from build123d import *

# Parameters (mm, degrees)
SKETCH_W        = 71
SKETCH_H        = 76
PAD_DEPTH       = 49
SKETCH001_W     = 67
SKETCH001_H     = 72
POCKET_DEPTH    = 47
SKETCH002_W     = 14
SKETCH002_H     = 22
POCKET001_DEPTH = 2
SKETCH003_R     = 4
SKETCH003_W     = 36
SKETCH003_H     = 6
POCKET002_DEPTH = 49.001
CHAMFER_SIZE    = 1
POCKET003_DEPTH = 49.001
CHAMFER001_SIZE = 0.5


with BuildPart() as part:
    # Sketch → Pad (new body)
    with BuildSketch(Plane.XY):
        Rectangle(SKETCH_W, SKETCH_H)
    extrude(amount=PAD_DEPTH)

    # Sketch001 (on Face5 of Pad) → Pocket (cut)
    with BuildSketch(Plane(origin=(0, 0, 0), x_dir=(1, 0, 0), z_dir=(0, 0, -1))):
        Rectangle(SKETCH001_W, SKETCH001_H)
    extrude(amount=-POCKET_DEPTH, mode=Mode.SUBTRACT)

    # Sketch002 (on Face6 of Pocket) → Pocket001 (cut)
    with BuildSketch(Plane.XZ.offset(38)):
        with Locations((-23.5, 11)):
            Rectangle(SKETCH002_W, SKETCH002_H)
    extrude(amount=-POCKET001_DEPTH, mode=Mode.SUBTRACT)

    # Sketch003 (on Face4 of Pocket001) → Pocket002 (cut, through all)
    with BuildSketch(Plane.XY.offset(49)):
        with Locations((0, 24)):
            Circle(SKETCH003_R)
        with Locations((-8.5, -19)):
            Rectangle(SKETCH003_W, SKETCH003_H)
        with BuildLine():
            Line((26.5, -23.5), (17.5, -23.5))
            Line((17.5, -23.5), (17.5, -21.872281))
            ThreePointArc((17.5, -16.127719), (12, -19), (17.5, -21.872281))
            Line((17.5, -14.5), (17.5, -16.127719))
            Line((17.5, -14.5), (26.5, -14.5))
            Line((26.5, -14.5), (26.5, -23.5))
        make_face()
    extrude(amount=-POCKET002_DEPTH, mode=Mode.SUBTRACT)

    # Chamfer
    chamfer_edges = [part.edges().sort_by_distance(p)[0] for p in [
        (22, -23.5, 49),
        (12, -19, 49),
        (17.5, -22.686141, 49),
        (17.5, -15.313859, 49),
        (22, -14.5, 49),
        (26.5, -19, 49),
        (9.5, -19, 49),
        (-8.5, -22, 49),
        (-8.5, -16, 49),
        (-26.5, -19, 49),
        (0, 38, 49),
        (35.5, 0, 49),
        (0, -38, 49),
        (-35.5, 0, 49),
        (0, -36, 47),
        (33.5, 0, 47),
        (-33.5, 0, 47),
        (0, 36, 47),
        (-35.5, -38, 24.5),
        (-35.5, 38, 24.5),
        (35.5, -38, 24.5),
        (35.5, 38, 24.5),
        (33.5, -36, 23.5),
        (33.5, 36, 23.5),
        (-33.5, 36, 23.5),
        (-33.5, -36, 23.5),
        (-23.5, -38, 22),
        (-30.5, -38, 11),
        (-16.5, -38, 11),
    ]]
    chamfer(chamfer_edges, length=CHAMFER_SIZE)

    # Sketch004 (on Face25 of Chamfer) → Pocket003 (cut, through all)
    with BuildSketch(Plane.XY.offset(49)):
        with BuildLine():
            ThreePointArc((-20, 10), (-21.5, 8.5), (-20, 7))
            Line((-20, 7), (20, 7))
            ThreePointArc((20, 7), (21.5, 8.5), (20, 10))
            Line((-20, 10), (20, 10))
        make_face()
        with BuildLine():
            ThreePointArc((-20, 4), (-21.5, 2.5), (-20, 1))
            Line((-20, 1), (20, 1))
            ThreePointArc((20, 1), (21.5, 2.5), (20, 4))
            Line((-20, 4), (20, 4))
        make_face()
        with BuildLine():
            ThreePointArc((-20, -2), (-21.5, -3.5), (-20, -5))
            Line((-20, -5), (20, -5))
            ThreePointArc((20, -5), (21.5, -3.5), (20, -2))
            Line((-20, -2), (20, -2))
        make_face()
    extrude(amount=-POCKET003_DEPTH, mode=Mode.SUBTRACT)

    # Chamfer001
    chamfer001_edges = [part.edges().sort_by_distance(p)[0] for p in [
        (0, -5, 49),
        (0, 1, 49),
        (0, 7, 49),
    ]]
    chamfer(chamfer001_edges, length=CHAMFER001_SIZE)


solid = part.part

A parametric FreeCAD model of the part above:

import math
import FreeCAD as App
import Part
import Sketcher
Q = App.Units.Quantity


def edges_at(feature, points):
    """Names of the edges that pass closest to the given points."""
    edges = feature.Shape.Edges
    near = lambda p: min(range(len(edges)), key=lambda i: edges[i].distToShape(Part.Vertex(*p))[0])
    return sorted({f"Edge{near(p) + 1}" for p in points})

doc = App.newDocument("Part")
body = doc.addObject("PartDesign::Body", "Body")

# Sketch on XY plane
sketch1 = body.newObject("Sketcher::SketchObject", "Sketch")
sketch1.AttachmentSupport = (doc.getObject("XY_Plane"), [""])
sketch1.MapMode = "FlatFace"
sketch1.addGeometry(Part.LineSegment(App.Vector(-36, 38, 0), App.Vector(-36, -38, 0)), False)
sketch1.addGeometry(Part.LineSegment(App.Vector(-36, -38, 0), App.Vector(36, -38, 0)), False)
sketch1.addGeometry(Part.LineSegment(App.Vector(36, -38, 0), App.Vector(36, 38, 0)), False)
sketch1.addGeometry(Part.LineSegment(App.Vector(36, 38, 0), App.Vector(-36, 38, 0)), False)
sketch1.addConstraint(Sketcher.Constraint("Coincident", 0, 2, 1, 1))
sketch1.addConstraint(Sketcher.Constraint("Coincident", 1, 2, 2, 1))
sketch1.addConstraint(Sketcher.Constraint("Coincident", 2, 2, 3, 1))
sketch1.addConstraint(Sketcher.Constraint("Coincident", 3, 2, 0, 1))
sketch1.addConstraint(Sketcher.Constraint("Vertical", 0))
sketch1.addConstraint(Sketcher.Constraint("Horizontal", 1))
sketch1.addConstraint(Sketcher.Constraint("Vertical", 2))
sketch1.addConstraint(Sketcher.Constraint("Horizontal", 3))
sketch1.addConstraint(Sketcher.Constraint("Symmetric", 0, 2, 2, 2, -1, 1))
sketch1.addConstraint(Sketcher.Constraint("DistanceX", 1, 1, 1, 2, Q("71 mm")))
sketch1.addConstraint(Sketcher.Constraint("DistanceY", 0, 2, 0, 1, Q("76 mm")))
pad1 = body.newObject("PartDesign::Pad", "Pad")
pad1.Profile = sketch1
pad1.Length = 49

# Sketch on XY plane
sketch2 = body.newObject("Sketcher::SketchObject", "Sketch001")
sketch2.AttachmentSupport = (doc.getObject("XY_Plane"), [""])
sketch2.MapMode = "FlatFace"
sketch2.addGeometry(Part.LineSegment(App.Vector(-34, -36, 0), App.Vector(-34, 36, 0)), False)
sketch2.addGeometry(Part.LineSegment(App.Vector(-34, 36, 0), App.Vector(34, 36, 0)), False)
sketch2.addGeometry(Part.LineSegment(App.Vector(34, 36, 0), App.Vector(34, -36, 0)), False)
sketch2.addGeometry(Part.LineSegment(App.Vector(34, -36, 0), App.Vector(-34, -36, 0)), False)
sketch2.addConstraint(Sketcher.Constraint("Coincident", 0, 2, 1, 1))
sketch2.addConstraint(Sketcher.Constraint("Coincident", 1, 2, 2, 1))
sketch2.addConstraint(Sketcher.Constraint("Coincident", 2, 2, 3, 1))
sketch2.addConstraint(Sketcher.Constraint("Coincident", 3, 2, 0, 1))
sketch2.addConstraint(Sketcher.Constraint("Vertical", 0))
sketch2.addConstraint(Sketcher.Constraint("Horizontal", 1))
sketch2.addConstraint(Sketcher.Constraint("Vertical", 2))
sketch2.addConstraint(Sketcher.Constraint("Horizontal", 3))
sketch2.addConstraint(Sketcher.Constraint("Symmetric", 0, 2, 2, 2, -1, 1))
sketch2.addConstraint(Sketcher.Constraint("DistanceX", 1, 1, 1, 2, Q("67 mm")))
sketch2.addConstraint(Sketcher.Constraint("DistanceY", 0, 1, 0, 2, Q("72 mm")))
pocket1 = body.newObject("PartDesign::Pocket", "Pocket")
pocket1.Profile = sketch2
pocket1.Length = 47
pocket1.Reversed = True

# Sketch on XZ plane
sketch3 = body.newObject("Sketcher::SketchObject", "Sketch002")
sketch3.AttachmentSupport = (doc.getObject("XZ_Plane"), [""])
sketch3.MapMode = "FlatFace"
sketch3.AttachmentOffset = App.Placement(App.Vector(0, 0, 38), App.Rotation())
sketch3.addGeometry(Part.LineSegment(App.Vector(-30, 22, 0), App.Vector(-30, 0, 0)), False)
sketch3.addGeometry(Part.LineSegment(App.Vector(-30, 0, 0), App.Vector(-16, 0, 0)), False)
sketch3.addGeometry(Part.LineSegment(App.Vector(-16, 0, 0), App.Vector(-16, 22, 0)), False)
sketch3.addGeometry(Part.LineSegment(App.Vector(-16, 22, 0), App.Vector(-30, 22, 0)), False)
sketch3.addConstraint(Sketcher.Constraint("Coincident", 0, 2, 1, 1))
sketch3.addConstraint(Sketcher.Constraint("Coincident", 1, 2, 2, 1))
sketch3.addConstraint(Sketcher.Constraint("Coincident", 2, 2, 3, 1))
sketch3.addConstraint(Sketcher.Constraint("Coincident", 3, 2, 0, 1))
sketch3.addConstraint(Sketcher.Constraint("Vertical", 0))
sketch3.addConstraint(Sketcher.Constraint("Horizontal", 1))
sketch3.addConstraint(Sketcher.Constraint("Vertical", 2))
sketch3.addConstraint(Sketcher.Constraint("Horizontal", 3))
sketch3.addConstraint(Sketcher.Constraint("PointOnObject", 0, 2, -1))
sketch3.addConstraint(Sketcher.Constraint("DistanceX", 1, 1, 1, 2, Q("14 mm")))
sketch3.addConstraint(Sketcher.Constraint("DistanceY", 0, 2, 0, 1, Q("22 mm")))
sketch3.addConstraint(Sketcher.Constraint("DistanceX", 0, 2, -1, 1, Q("30.5 mm")))
pocket2 = body.newObject("PartDesign::Pocket", "Pocket001")
pocket2.Profile = sketch3
pocket2.Length = 2

# Sketch on XY plane
sketch4 = body.newObject("Sketcher::SketchObject", "Sketch003")
sketch4.AttachmentSupport = (doc.getObject("XY_Plane"), [""])
sketch4.MapMode = "FlatFace"
sketch4.AttachmentOffset = App.Placement(App.Vector(0, 0, 49), App.Rotation())
sketch4.addGeometry(Part.Circle(App.Vector(0, 24, 0), App.Vector(0, 0, 1), 4), False)
sketch4.addGeometry(Part.LineSegment(App.Vector(-26.5, -16, 0), App.Vector(-26.5, -22, 0)), False)
sketch4.addGeometry(Part.LineSegment(App.Vector(-26.5, -22, 0), App.Vector(9.5, -22, 0)), False)
sketch4.addGeometry(Part.LineSegment(App.Vector(9.5, -22, 0), App.Vector(9.5, -16, 0)), False)
sketch4.addGeometry(Part.LineSegment(App.Vector(9.5, -16, 0), App.Vector(-26.5, -16, 0)), False)
sketch4.addGeometry(Part.LineSegment(App.Vector(17.5, -23.5, 0), App.Vector(26.5, -23.5, 0)), False)
sketch4.addGeometry(Part.LineSegment(App.Vector(26.5, -23.5, 0), App.Vector(26.5, -14.5, 0)), False)
sketch4.addGeometry(Part.LineSegment(App.Vector(26.5, -14.5, 0), App.Vector(17.5, -14.5, 0)), False)
sketch4.addGeometry(Part.LineSegment(App.Vector(17.5, -14.5, 0), App.Vector(17.5, -16.1, 0)), False)
sketch4.addGeometry(Part.ArcOfCircle(Part.Circle(App.Vector(15.5, -19, 0), App.Vector(0, 0, 1), 3.5), math.radians(55), math.radians(305)), False)
sketch4.addGeometry(Part.LineSegment(App.Vector(17.5, -21.9, 0), App.Vector(17.5, -23.5, 0)), False)
sketch4.addConstraint(Sketcher.Constraint("Coincident", 1, 2, 2, 1))
sketch4.addConstraint(Sketcher.Constraint("Coincident", 2, 2, 3, 1))
sketch4.addConstraint(Sketcher.Constraint("Coincident", 3, 2, 4, 1))
sketch4.addConstraint(Sketcher.Constraint("Coincident", 4, 2, 1, 1))
sketch4.addConstraint(Sketcher.Constraint("Coincident", 5, 2, 6, 1))
sketch4.addConstraint(Sketcher.Constraint("Coincident", 6, 2, 7, 1))
sketch4.addConstraint(Sketcher.Constraint("Coincident", 7, 2, 8, 1))
sketch4.addConstraint(Sketcher.Constraint("Coincident", 8, 2, 9, 1))
sketch4.addConstraint(Sketcher.Constraint("Coincident", 9, 2, 10, 1))
sketch4.addConstraint(Sketcher.Constraint("Coincident", 10, 2, 5, 1))
sketch4.addConstraint(Sketcher.Constraint("Vertical", 1))
sketch4.addConstraint(Sketcher.Constraint("Horizontal", 2))
sketch4.addConstraint(Sketcher.Constraint("Vertical", 3))
sketch4.addConstraint(Sketcher.Constraint("Horizontal", 4))
sketch4.addConstraint(Sketcher.Constraint("Horizontal", 5))
sketch4.addConstraint(Sketcher.Constraint("Vertical", 6))
sketch4.addConstraint(Sketcher.Constraint("Horizontal", 7))
sketch4.addConstraint(Sketcher.Constraint("Vertical", 8))
sketch4.addConstraint(Sketcher.Constraint("Vertical", 10))
sketch4.addConstraint(Sketcher.Constraint("PointOnObject", 0, 3, -2))
sketch4.addConstraint(Sketcher.Constraint("Vertical", 8, 2, 9, 2))
sketch4.addConstraint(Sketcher.Constraint("Equal", 7, 6))
sketch4.addConstraint(Sketcher.Constraint("Equal", 8, 10))
sketch4.addConstraint(Sketcher.Constraint("Diameter", 0, Q("8 mm")))
sketch4.addConstraint(Sketcher.Constraint("Radius", 9, Q("3.5 mm")))
sketch4.addConstraint(Sketcher.Constraint("DistanceX", 2, 1, 2, 2, Q("36 mm")))
sketch4.addConstraint(Sketcher.Constraint("DistanceX", 5, 1, 5, 2, Q("9 mm")))
sketch4.addConstraint(Sketcher.Constraint("DistanceY", 1, 2, 1, 1, Q("6 mm")))
sketch4.addConstraint(Sketcher.Constraint("DistanceY", -1, 1, 0, 3, Q("24 mm")))
sketch4.addConstraint(Sketcher.Constraint("DistanceY", 9, 3, -1, 1, Q("19 mm")))
sketch4.addConstraint(Sketcher.Constraint("DistanceY", 1, 2, -1, 1, Q("22 mm")))
sketch4.addConstraint(Sketcher.Constraint("DistanceX", 1, 2, 9, 3, Q("42 mm")))
sketch4.addConstraint(Sketcher.Constraint("DistanceX", 9, 3, 5, 2, Q("11 mm")))
sketch4.addConstraint(Sketcher.Constraint("DistanceX", -1, 1, 9, 3, Q("15.5 mm")))
pocket3 = body.newObject("PartDesign::Pocket", "Pocket002")
pocket3.Profile = sketch4
pocket3.Type = "ThroughAll"
doc.recompute()

chamfer = body.newObject("PartDesign::Chamfer", "Chamfer")
chamfer.Base = (pocket3, edges_at(pocket3, [
    (22, -23.5, 49),
    (12, -19, 49),
    (17.5, -22.686, 49),
    (17.5, -15.314, 49),
    (22, -14.5, 49),
    (26.5, -19, 49),
    (9.5, -19, 49),
    (-8.5, -22, 49),
    (-8.5, -16, 49),
    (-26.5, -19, 49),
    (0, 38, 49),
    (35.5, 0, 49),
    (0, -38, 49),
    (-35.5, 0, 49),
    (0, -36, 47),
    (33.5, 0, 47),
    (-33.5, 0, 47),
    (0, 36, 47),
    (-35.5, -38, 24.5),
    (-35.5, 38, 24.5),
    (35.5, -38, 24.5),
    (35.5, 38, 24.5),
    (33.5, -36, 23.5),
    (33.5, 36, 23.5),
    (-33.5, 36, 23.5),
    (-33.5, -36, 23.5),
    (-23.5, -38, 22),
    (-30.5, -38, 11),
    (-16.5, -38, 11),
]))
chamfer.Size = 1

# Sketch on XY plane
sketch5 = body.newObject("Sketcher::SketchObject", "Sketch004")
sketch5.AttachmentSupport = (doc.getObject("XY_Plane"), [""])
sketch5.MapMode = "FlatFace"
sketch5.AttachmentOffset = App.Placement(App.Vector(0, 0, 49), App.Rotation())
sketch5.addGeometry(Part.ArcOfCircle(Part.Circle(App.Vector(-20, 8.5, 0), App.Vector(0, 0, 1), 1.5), math.radians(90), math.radians(270)), False)
sketch5.addGeometry(Part.LineSegment(App.Vector(-20, 7, 0), App.Vector(20, 7, 0)), False)
sketch5.addGeometry(Part.ArcOfCircle(Part.Circle(App.Vector(20, 8.5, 0), App.Vector(0, 0, 1), 1.5), math.radians(-90), math.radians(90)), False)
sketch5.addGeometry(Part.LineSegment(App.Vector(20, 10, 0), App.Vector(-20, 10, 0)), False)
sketch5.addGeometry(Part.ArcOfCircle(Part.Circle(App.Vector(-20, 2.5, 0), App.Vector(0, 0, 1), 1.5), math.radians(90), math.radians(270)), False)
sketch5.addGeometry(Part.LineSegment(App.Vector(-20, 1, 0), App.Vector(20, 1, 0)), False)
sketch5.addGeometry(Part.ArcOfCircle(Part.Circle(App.Vector(20, 2.5, 0), App.Vector(0, 0, 1), 1.5), math.radians(-90), math.radians(90)), False)
sketch5.addGeometry(Part.LineSegment(App.Vector(20, 4, 0), App.Vector(-20, 4, 0)), False)
sketch5.addGeometry(Part.ArcOfCircle(Part.Circle(App.Vector(-20, -3.5, 0), App.Vector(0, 0, 1), 1.5), math.radians(90), math.radians(270)), False)
sketch5.addGeometry(Part.LineSegment(App.Vector(-20, -5, 0), App.Vector(20, -5, 0)), False)
sketch5.addGeometry(Part.ArcOfCircle(Part.Circle(App.Vector(20, -3.5, 0), App.Vector(0, 0, 1), 1.5), math.radians(-90), math.radians(90)), False)
sketch5.addGeometry(Part.LineSegment(App.Vector(20, -2, 0), App.Vector(-20, -2, 0)), False)
sketch5.addConstraint(Sketcher.Constraint("Tangent", 0, 2, 1, 1))
sketch5.addConstraint(Sketcher.Constraint("Tangent", 1, 2, 2, 1))
sketch5.addConstraint(Sketcher.Constraint("Tangent", 2, 2, 3, 1))
sketch5.addConstraint(Sketcher.Constraint("Tangent", 3, 2, 0, 1))
sketch5.addConstraint(Sketcher.Constraint("Tangent", 4, 2, 5, 1))
sketch5.addConstraint(Sketcher.Constraint("Tangent", 5, 2, 6, 1))
sketch5.addConstraint(Sketcher.Constraint("Tangent", 6, 2, 7, 1))
sketch5.addConstraint(Sketcher.Constraint("Tangent", 7, 2, 4, 1))
sketch5.addConstraint(Sketcher.Constraint("Tangent", 8, 2, 9, 1))
sketch5.addConstraint(Sketcher.Constraint("Tangent", 9, 2, 10, 1))
sketch5.addConstraint(Sketcher.Constraint("Tangent", 10, 2, 11, 1))
sketch5.addConstraint(Sketcher.Constraint("Tangent", 11, 2, 8, 1))
sketch5.addConstraint(Sketcher.Constraint("Horizontal", 1))
sketch5.addConstraint(Sketcher.Constraint("Horizontal", 3))
sketch5.addConstraint(Sketcher.Constraint("Horizontal", 5))
sketch5.addConstraint(Sketcher.Constraint("Horizontal", 7))
sketch5.addConstraint(Sketcher.Constraint("Horizontal", 9))
sketch5.addConstraint(Sketcher.Constraint("Horizontal", 11))
sketch5.addConstraint(Sketcher.Constraint("Equal", 2, 4))
sketch5.addConstraint(Sketcher.Constraint("Equal", 6, 8))
sketch5.addConstraint(Sketcher.Constraint("Vertical", 0, 3, 4, 3))
sketch5.addConstraint(Sketcher.Constraint("Vertical", 2, 3, 6, 3))
sketch5.addConstraint(Sketcher.Constraint("Vertical", 4, 3, 8, 3))
sketch5.addConstraint(Sketcher.Constraint("Vertical", 6, 3, 10, 3))
sketch5.addConstraint(Sketcher.Constraint("Radius", 0, Q("1.5 mm")))
sketch5.addConstraint(Sketcher.Constraint("DistanceX", 1, 1, 1, 2, Q("40 mm")))
sketch5.addConstraint(Sketcher.Constraint("DistanceX", 0, 3, -1, 1, Q("20 mm")))
sketch5.addConstraint(Sketcher.Constraint("DistanceY", -1, 1, 0, 2, Q("7 mm")))
sketch5.addConstraint(Sketcher.Constraint("DistanceY", -1, 1, 4, 2, Q("1 mm")))
sketch5.addConstraint(Sketcher.Constraint("DistanceY", 8, 2, -1, 1, Q("5 mm")))
pocket4 = body.newObject("PartDesign::Pocket", "Pocket003")
pocket4.Profile = sketch5
pocket4.Type = "ThroughAll"
doc.recompute()

chamfer2 = body.newObject("PartDesign::Chamfer", "Chamfer001")
chamfer2.Base = (pocket4, edges_at(pocket4, [(0, -5, 49), (0, 1, 49), (0, 7, 49)]))
chamfer2.Size = 0.5

doc.recompute()
